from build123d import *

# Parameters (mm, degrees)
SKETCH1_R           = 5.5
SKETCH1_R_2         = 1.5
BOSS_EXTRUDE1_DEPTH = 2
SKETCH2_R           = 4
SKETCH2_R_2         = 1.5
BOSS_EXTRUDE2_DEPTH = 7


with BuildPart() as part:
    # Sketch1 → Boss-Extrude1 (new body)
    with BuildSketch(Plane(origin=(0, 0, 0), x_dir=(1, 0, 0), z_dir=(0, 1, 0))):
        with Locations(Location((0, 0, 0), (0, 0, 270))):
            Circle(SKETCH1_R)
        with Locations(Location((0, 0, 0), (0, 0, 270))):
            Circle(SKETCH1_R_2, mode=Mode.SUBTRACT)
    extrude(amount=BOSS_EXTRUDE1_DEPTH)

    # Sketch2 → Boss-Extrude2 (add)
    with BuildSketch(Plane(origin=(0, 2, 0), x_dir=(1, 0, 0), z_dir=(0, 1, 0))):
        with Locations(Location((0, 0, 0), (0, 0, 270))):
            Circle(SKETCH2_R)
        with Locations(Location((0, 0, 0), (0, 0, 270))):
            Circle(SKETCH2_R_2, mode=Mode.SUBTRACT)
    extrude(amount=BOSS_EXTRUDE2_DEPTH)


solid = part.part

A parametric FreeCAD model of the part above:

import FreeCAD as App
import Part
import Sketcher
Q = App.Units.Quantity

doc = App.newDocument("Part")
params = doc.addObject("Spreadsheet::Sheet", "Params")
for row, (alias, value) in enumerate([
    ("sketch1_diameter", "11 mm"),
    ("sketch1_diameter2", "3 mm"),
    ("pad1_length", "2 mm"),
    ("sketch2_diameter", "8 mm"),
    ("sketch2_diameter2", "3 mm"),
    ("pad2_length", "7 mm"),
], start=1):
    params.set(f"A{row}", alias)
    params.set(f"B{row}", "=" + value)
    params.setAlias(f"B{row}", alias)

body = doc.addObject("PartDesign::Body", "Body")

# Sketch on XZ plane
sketch1 = body.newObject("Sketcher::SketchObject", "Sketch")
sketch1.AttachmentSupport = (doc.getObject("XZ_Plane"), [""])
sketch1.MapMode = "FlatFace"
sketch1.addGeometry(Part.Circle(App.Vector(0, 0, 0), App.Vector(0, 0, 1), 5.5), False)
sketch1.addGeometry(Part.Circle(App.Vector(0, 0, 0), App.Vector(0, 0, 1), 1.5), False)
sketch1.addConstraint(Sketcher.Constraint("Coincident", 0, 3, -1, 1))
sketch1.addConstraint(Sketcher.Constraint("Coincident", 1, 3, -1, 1))
sketch1.addConstraint(Sketcher.Constraint("Diameter", 0, Q("11 mm")))
sketch1.addConstraint(Sketcher.Constraint("Diameter", 1, Q("3 mm")))
sketch1.setExpression("Constraints[2]", "Params.sketch1_diameter")
sketch1.setExpression("Constraints[3]", "Params.sketch1_diameter2")
pad1 = body.newObject("PartDesign::Pad", "Pad")
pad1.Profile = sketch1
pad1.setExpression("Length", "Params.pad1_length")
pad1.Reversed = True

# Sketch on XZ plane
sketch2 = body.newObject("Sketcher::SketchObject", "Sketch001")
sketch2.AttachmentSupport = (doc.getObject("XZ_Plane"), [""])
sketch2.MapMode = "FlatFace"
sketch2.AttachmentOffset = App.Placement(App.Vector(0, 0, -2), App.Rotation())
sketch2.addGeometry(Part.Circle(App.Vector(0, 0, 0), App.Vector(0, 0, 1), 4), False)
sketch2.addGeometry(Part.Circle(App.Vector(0, 0, 0), App.Vector(0, 0, 1), 1.5), False)
sketch2.addConstraint(Sketcher.Constraint("Coincident", 0, 3, -1, 1))
sketch2.addConstraint(Sketcher.Constraint("Coincident", 1, 3, -1, 1))
sketch2.addConstraint(Sketcher.Constraint("Diameter", 0, Q("8 mm")))
sketch2.addConstraint(Sketcher.Constraint("Diameter", 1, Q("3 mm")))
sketch2.setExpression("Constraints[2]", "Params.sketch2_diameter")
sketch2.setExpression("Constraints[3]", "Params.sketch2_diameter2")
pad2 = body.newObject("PartDesign::Pad", "Pad001")
pad2.Profile = sketch2
pad2.setExpression("Length", "Params.pad2_length")
pad2.Reversed = True

doc.recompute()
